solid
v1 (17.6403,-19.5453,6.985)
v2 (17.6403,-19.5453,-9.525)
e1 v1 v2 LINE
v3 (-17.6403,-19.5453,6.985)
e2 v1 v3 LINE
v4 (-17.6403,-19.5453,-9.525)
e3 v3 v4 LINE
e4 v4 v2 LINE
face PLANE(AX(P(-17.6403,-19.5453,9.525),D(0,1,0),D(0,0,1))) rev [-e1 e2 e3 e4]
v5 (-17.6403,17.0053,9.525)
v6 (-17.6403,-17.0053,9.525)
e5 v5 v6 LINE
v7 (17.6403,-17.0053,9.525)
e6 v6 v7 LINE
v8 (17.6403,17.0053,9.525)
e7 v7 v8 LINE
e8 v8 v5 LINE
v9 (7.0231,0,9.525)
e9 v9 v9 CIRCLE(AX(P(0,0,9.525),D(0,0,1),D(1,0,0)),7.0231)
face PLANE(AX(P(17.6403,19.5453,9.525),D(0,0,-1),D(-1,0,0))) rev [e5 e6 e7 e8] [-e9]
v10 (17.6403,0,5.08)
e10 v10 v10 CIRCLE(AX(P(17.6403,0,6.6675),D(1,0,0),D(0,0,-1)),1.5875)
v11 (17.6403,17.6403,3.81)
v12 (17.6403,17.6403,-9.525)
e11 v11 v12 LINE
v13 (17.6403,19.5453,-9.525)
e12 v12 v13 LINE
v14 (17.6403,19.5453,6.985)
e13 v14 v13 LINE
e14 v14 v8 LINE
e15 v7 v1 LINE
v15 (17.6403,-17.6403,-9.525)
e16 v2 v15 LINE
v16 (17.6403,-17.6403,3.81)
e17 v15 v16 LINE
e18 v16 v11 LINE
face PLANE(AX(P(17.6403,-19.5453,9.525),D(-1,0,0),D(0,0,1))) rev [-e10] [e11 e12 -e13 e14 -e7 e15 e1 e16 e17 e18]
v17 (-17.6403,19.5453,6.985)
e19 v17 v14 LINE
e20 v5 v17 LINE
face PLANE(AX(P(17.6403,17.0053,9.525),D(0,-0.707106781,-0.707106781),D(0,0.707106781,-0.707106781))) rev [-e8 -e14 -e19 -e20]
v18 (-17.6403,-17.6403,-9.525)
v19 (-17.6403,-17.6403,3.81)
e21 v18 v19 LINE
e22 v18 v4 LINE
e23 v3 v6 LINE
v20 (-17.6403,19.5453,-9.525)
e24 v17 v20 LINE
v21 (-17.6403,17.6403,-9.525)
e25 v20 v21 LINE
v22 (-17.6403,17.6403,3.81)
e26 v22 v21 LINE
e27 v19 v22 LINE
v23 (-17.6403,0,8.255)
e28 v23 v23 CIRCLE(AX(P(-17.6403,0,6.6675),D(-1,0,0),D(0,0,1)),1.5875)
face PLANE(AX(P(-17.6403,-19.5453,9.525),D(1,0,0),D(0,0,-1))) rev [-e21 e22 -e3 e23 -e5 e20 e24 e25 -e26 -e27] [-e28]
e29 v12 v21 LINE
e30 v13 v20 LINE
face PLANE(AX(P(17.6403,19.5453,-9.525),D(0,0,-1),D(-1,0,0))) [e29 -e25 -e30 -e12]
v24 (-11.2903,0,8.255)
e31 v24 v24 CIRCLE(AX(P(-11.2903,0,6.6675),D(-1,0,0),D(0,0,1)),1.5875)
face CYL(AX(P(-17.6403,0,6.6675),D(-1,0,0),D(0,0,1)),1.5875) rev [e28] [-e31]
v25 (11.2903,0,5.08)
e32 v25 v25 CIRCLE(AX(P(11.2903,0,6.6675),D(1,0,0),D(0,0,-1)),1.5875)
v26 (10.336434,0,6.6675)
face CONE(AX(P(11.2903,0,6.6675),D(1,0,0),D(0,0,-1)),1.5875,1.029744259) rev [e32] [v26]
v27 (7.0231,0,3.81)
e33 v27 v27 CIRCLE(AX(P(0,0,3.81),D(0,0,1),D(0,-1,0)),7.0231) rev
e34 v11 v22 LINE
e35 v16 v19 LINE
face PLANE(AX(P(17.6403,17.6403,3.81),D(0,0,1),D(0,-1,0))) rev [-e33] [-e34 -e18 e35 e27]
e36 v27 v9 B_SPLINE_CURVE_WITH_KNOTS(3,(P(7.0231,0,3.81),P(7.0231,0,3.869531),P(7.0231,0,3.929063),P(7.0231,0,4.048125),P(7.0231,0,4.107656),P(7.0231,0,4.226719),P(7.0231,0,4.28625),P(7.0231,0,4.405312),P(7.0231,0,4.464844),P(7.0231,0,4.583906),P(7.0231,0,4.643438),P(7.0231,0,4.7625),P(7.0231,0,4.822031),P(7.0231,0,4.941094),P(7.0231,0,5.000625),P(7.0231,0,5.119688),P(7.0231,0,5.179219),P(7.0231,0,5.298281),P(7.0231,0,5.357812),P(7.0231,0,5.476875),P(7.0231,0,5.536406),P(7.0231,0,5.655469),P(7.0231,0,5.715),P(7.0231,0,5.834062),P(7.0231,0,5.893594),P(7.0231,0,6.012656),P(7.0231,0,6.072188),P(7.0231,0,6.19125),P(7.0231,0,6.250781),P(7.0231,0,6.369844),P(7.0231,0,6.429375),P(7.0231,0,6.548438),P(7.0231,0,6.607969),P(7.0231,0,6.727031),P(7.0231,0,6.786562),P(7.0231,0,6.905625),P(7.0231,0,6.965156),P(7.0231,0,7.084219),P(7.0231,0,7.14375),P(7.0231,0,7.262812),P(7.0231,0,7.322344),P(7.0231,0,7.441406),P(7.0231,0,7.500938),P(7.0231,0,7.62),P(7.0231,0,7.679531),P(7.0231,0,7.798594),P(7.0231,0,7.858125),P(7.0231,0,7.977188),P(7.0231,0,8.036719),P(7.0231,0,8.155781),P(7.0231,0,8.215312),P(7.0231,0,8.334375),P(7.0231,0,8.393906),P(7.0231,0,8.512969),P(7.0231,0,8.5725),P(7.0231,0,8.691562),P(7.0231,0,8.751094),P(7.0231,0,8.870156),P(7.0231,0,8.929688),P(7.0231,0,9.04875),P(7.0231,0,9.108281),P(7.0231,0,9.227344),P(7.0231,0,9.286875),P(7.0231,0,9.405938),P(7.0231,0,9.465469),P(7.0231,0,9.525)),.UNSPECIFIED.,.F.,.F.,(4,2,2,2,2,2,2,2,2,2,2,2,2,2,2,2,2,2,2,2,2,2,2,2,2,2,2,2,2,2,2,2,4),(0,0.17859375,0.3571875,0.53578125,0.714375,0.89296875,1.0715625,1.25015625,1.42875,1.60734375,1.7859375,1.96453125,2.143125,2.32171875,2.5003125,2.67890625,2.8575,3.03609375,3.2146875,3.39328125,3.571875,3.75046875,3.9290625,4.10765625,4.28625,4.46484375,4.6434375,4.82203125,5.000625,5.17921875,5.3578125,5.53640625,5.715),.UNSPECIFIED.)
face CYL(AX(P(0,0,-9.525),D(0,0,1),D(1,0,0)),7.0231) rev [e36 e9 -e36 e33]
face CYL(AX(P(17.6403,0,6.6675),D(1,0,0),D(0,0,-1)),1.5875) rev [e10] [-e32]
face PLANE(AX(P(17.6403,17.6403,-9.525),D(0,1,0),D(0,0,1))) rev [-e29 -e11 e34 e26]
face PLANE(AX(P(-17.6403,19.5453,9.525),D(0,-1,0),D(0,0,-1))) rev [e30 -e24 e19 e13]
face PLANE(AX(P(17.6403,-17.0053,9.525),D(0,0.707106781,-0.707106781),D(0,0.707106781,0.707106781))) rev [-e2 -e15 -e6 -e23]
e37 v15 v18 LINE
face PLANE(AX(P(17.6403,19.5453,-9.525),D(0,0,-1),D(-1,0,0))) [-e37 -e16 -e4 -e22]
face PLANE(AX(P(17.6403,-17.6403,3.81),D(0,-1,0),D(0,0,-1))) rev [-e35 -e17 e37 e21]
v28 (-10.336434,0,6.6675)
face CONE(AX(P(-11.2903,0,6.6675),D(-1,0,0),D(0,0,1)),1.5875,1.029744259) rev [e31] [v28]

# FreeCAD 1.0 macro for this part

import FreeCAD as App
import Part
import Sketcher
from FreeCAD import Vector
Q = App.Units.Quantity


def edges_at(feature, points):
    """Names of the edges that pass closest to the given points."""
    edges = feature.Shape.Edges
    near = lambda p: min(range(len(edges)), key=lambda i: edges[i].distToShape(Part.Vertex(*p))[0])
    return sorted({f"Edge{near(p) + 1}" for p in points})


def add_polygon(sketch, points):
    """Adds a closed chain of lines whose ends are joined by coincident constraints."""
    first, n = sketch.GeometryCount, len(points)
    for a, b in zip(points, points[1:] + points[:1]):
        sketch.addGeometry(Part.LineSegment(App.Vector(*a, 0), App.Vector(*b, 0)), False)
    for i in range(n):
        sketch.addConstraint(Sketcher.Constraint("Coincident", first + i, 2, first + (i + 1) % n, 1))

doc = App.newDocument("Part")
body = doc.addObject("PartDesign::Body", "Body")

# Sketch on XY plane
sketch1 = doc.addObject("Sketcher::SketchObject", "Sketch")
body.addObject(sketch1)
sketch1.AttachmentSupport = (doc.XY_Plane, [""])
sketch1.MapMode = "FlatFace"
add_polygon(sketch1, [(-17.6403, 19.5453), (-17.6403, -19.5453), (17.6403, -19.5453), (17.6403, 19.5453)])  # lines 0-3
sketch1.addConstraint(Sketcher.Constraint("Vertical", 0))
sketch1.addConstraint(Sketcher.Constraint("Horizontal", 1))
sketch1.addConstraint(Sketcher.Constraint("Vertical", 2))
sketch1.addConstraint(Sketcher.Constraint("Horizontal", 3))
sketch1.addConstraint(Sketcher.Constraint("Symmetric", 0, 2, 2, 2, -1, 1))
sketch1.addConstraint(Sketcher.Constraint("DistanceX", 1, 1, 1, 2, Q("1.389 in")))
sketch1.addConstraint(Sketcher.Constraint("DistanceY", 0, 2, 0, 1, Q("1.539 in")))
pad1 = doc.addObject("PartDesign::Pad", "Pad")
body.addObject(pad1)
pad1.Profile = sketch1
pad1.Length = Q("0.75 in")
pad1.Midplane = True

# Sketch on XY plane
sketch2 = doc.addObject("Sketcher::SketchObject", "Sketch001")
body.addObject(sketch2)
sketch2.AttachmentSupport = (doc.XY_Plane, [""])
sketch2.MapMode = "FlatFace"
sketch2.AttachmentOffset = App.Placement(Vector(0, 0, 0.375 * 25.4), App.Rotation())
sketch2.addGeometry(Part.Circle(Vector(0, 0, 0), Vector(0, 0, 1), 7.0231), False)
sketch2.addConstraint(Sketcher.Constraint("Coincident", 0, 3, -1, 1))
sketch2.addConstraint(Sketcher.Constraint("Diameter", 0, Q("0.553 in")))
pocket1 = doc.addObject("PartDesign::Pocket", "Pocket")
body.addObject(pocket1)
pocket1.Profile = sketch2
pocket1.Type = "ThroughAll"

# Sketch on YZ plane
sketch3 = doc.addObject("Sketcher::SketchObject", "Sketch002")
body.addObject(sketch3)
sketch3.AttachmentSupport = (doc.YZ_Plane, [""])
sketch3.MapMode = "FlatFace"
sketch3.AttachmentOffset = App.Placement(Vector(0, 0, -0.6945 * 25.4), App.Rotation())
add_polygon(sketch3, [(17.6403, 3.81), (17.6403, -9.525), (-17.6403, -9.525), (-17.6403, 3.81)])  # lines 0-3
sketch3.addConstraint(Sketcher.Constraint("Vertical", 0))
sketch3.addConstraint(Sketcher.Constraint("Horizontal", 1))
sketch3.addConstraint(Sketcher.Constraint("Vertical", 2))
sketch3.addConstraint(Sketcher.Constraint("Horizontal", 3))
sketch3.addConstraint(Sketcher.Constraint("DistanceX", 1, 2, 1, 1, Q("1.389 in")))
sketch3.addConstraint(Sketcher.Constraint("DistanceY", 0, 2, 0, 1, Q("0.525 in")))
sketch3.addConstraint(Sketcher.Constraint("DistanceY", -1, 1, 2, 2, Q("0.15 in")))
sketch3.addConstraint(Sketcher.Constraint("DistanceX", -1, 1, 0, 2, Q("0.6945 in")))
pocket2 = doc.addObject("PartDesign::Pocket", "Pocket001")
body.addObject(pocket2)
pocket2.Profile = sketch3
pocket2.Type = "ThroughAll"
pocket2.Reversed = True

# Sketch on XZ plane
sketch4 = doc.addObject("Sketcher::SketchObject", "Sketch003")
body.addObject(sketch4)
sketch4.AttachmentSupport = (doc.XZ_Plane, [""])
sketch4.MapMode = "FlatFace"
add_polygon(sketch4, [(-10.336434, 6.6675), (-17.6403, 6.6675), (-17.6403, 8.255), (-11.2903, 8.255)])  # lines 0-3
sketch4.addGeometry(Part.LineSegment(Vector(-17.6403, 6.6675, 0), Vector(-10.336434, 6.6675, 0)), True)  # axis
sketch4.addConstraint(Sketcher.Constraint("Horizontal", 0))
sketch4.addConstraint(Sketcher.Constraint("Vertical", 1))
sketch4.addConstraint(Sketcher.Constraint("Horizontal", 2))
sketch4.addConstraint(Sketcher.Constraint("Horizontal", 4))
sketch4.addConstraint(Sketcher.Constraint("Coincident", 4, 1, 0, 2))
sketch4.addConstraint(Sketcher.Constraint("Equal", 0, 4))
sketch4.addConstraint(Sketcher.Constraint("Angle", 3, Q("-59 deg")))
sketch4.addConstraint(Sketcher.Constraint("DistanceX", 2, 1, 2, 2, Q("0.25 in")))
sketch4.addConstraint(Sketcher.Constraint("DistanceY", 1, 1, 1, 2, Q("0.0625 in")))
sketch4.addConstraint(Sketcher.Constraint("DistanceY", -1, 1, 1, 2, Q("0.325 in")))
sketch4.addConstraint(Sketcher.Constraint("DistanceX", 0, 2, -1, 1, Q("0.6945 in")))
groove = doc.addObject("PartDesign::Groove", "Groove")
body.addObject(groove)
groove.Profile = sketch4
groove.ReferenceAxis = (sketch4, ["Axis0"])
groove.Angle = 360
doc.recompute()

mirrored = doc.addObject("PartDesign::Mirrored", "Mirrored")
body.addObject(mirrored)
mirrored.Originals = [groove]
mirrored.MirrorPlane = (doc.YZ_Plane, [""])
body.Tip = mirrored
doc.recompute()

chamfer = doc.addObject("PartDesign::Chamfer", "Chamfer")
body.addObject(chamfer)
chamfer.Base = (mirrored, edges_at(mirrored, [(0, -19.545, 9.525), (0, 19.545, 9.525)]))
chamfer.Size = Q("0.1 in")

doc.recompute()
